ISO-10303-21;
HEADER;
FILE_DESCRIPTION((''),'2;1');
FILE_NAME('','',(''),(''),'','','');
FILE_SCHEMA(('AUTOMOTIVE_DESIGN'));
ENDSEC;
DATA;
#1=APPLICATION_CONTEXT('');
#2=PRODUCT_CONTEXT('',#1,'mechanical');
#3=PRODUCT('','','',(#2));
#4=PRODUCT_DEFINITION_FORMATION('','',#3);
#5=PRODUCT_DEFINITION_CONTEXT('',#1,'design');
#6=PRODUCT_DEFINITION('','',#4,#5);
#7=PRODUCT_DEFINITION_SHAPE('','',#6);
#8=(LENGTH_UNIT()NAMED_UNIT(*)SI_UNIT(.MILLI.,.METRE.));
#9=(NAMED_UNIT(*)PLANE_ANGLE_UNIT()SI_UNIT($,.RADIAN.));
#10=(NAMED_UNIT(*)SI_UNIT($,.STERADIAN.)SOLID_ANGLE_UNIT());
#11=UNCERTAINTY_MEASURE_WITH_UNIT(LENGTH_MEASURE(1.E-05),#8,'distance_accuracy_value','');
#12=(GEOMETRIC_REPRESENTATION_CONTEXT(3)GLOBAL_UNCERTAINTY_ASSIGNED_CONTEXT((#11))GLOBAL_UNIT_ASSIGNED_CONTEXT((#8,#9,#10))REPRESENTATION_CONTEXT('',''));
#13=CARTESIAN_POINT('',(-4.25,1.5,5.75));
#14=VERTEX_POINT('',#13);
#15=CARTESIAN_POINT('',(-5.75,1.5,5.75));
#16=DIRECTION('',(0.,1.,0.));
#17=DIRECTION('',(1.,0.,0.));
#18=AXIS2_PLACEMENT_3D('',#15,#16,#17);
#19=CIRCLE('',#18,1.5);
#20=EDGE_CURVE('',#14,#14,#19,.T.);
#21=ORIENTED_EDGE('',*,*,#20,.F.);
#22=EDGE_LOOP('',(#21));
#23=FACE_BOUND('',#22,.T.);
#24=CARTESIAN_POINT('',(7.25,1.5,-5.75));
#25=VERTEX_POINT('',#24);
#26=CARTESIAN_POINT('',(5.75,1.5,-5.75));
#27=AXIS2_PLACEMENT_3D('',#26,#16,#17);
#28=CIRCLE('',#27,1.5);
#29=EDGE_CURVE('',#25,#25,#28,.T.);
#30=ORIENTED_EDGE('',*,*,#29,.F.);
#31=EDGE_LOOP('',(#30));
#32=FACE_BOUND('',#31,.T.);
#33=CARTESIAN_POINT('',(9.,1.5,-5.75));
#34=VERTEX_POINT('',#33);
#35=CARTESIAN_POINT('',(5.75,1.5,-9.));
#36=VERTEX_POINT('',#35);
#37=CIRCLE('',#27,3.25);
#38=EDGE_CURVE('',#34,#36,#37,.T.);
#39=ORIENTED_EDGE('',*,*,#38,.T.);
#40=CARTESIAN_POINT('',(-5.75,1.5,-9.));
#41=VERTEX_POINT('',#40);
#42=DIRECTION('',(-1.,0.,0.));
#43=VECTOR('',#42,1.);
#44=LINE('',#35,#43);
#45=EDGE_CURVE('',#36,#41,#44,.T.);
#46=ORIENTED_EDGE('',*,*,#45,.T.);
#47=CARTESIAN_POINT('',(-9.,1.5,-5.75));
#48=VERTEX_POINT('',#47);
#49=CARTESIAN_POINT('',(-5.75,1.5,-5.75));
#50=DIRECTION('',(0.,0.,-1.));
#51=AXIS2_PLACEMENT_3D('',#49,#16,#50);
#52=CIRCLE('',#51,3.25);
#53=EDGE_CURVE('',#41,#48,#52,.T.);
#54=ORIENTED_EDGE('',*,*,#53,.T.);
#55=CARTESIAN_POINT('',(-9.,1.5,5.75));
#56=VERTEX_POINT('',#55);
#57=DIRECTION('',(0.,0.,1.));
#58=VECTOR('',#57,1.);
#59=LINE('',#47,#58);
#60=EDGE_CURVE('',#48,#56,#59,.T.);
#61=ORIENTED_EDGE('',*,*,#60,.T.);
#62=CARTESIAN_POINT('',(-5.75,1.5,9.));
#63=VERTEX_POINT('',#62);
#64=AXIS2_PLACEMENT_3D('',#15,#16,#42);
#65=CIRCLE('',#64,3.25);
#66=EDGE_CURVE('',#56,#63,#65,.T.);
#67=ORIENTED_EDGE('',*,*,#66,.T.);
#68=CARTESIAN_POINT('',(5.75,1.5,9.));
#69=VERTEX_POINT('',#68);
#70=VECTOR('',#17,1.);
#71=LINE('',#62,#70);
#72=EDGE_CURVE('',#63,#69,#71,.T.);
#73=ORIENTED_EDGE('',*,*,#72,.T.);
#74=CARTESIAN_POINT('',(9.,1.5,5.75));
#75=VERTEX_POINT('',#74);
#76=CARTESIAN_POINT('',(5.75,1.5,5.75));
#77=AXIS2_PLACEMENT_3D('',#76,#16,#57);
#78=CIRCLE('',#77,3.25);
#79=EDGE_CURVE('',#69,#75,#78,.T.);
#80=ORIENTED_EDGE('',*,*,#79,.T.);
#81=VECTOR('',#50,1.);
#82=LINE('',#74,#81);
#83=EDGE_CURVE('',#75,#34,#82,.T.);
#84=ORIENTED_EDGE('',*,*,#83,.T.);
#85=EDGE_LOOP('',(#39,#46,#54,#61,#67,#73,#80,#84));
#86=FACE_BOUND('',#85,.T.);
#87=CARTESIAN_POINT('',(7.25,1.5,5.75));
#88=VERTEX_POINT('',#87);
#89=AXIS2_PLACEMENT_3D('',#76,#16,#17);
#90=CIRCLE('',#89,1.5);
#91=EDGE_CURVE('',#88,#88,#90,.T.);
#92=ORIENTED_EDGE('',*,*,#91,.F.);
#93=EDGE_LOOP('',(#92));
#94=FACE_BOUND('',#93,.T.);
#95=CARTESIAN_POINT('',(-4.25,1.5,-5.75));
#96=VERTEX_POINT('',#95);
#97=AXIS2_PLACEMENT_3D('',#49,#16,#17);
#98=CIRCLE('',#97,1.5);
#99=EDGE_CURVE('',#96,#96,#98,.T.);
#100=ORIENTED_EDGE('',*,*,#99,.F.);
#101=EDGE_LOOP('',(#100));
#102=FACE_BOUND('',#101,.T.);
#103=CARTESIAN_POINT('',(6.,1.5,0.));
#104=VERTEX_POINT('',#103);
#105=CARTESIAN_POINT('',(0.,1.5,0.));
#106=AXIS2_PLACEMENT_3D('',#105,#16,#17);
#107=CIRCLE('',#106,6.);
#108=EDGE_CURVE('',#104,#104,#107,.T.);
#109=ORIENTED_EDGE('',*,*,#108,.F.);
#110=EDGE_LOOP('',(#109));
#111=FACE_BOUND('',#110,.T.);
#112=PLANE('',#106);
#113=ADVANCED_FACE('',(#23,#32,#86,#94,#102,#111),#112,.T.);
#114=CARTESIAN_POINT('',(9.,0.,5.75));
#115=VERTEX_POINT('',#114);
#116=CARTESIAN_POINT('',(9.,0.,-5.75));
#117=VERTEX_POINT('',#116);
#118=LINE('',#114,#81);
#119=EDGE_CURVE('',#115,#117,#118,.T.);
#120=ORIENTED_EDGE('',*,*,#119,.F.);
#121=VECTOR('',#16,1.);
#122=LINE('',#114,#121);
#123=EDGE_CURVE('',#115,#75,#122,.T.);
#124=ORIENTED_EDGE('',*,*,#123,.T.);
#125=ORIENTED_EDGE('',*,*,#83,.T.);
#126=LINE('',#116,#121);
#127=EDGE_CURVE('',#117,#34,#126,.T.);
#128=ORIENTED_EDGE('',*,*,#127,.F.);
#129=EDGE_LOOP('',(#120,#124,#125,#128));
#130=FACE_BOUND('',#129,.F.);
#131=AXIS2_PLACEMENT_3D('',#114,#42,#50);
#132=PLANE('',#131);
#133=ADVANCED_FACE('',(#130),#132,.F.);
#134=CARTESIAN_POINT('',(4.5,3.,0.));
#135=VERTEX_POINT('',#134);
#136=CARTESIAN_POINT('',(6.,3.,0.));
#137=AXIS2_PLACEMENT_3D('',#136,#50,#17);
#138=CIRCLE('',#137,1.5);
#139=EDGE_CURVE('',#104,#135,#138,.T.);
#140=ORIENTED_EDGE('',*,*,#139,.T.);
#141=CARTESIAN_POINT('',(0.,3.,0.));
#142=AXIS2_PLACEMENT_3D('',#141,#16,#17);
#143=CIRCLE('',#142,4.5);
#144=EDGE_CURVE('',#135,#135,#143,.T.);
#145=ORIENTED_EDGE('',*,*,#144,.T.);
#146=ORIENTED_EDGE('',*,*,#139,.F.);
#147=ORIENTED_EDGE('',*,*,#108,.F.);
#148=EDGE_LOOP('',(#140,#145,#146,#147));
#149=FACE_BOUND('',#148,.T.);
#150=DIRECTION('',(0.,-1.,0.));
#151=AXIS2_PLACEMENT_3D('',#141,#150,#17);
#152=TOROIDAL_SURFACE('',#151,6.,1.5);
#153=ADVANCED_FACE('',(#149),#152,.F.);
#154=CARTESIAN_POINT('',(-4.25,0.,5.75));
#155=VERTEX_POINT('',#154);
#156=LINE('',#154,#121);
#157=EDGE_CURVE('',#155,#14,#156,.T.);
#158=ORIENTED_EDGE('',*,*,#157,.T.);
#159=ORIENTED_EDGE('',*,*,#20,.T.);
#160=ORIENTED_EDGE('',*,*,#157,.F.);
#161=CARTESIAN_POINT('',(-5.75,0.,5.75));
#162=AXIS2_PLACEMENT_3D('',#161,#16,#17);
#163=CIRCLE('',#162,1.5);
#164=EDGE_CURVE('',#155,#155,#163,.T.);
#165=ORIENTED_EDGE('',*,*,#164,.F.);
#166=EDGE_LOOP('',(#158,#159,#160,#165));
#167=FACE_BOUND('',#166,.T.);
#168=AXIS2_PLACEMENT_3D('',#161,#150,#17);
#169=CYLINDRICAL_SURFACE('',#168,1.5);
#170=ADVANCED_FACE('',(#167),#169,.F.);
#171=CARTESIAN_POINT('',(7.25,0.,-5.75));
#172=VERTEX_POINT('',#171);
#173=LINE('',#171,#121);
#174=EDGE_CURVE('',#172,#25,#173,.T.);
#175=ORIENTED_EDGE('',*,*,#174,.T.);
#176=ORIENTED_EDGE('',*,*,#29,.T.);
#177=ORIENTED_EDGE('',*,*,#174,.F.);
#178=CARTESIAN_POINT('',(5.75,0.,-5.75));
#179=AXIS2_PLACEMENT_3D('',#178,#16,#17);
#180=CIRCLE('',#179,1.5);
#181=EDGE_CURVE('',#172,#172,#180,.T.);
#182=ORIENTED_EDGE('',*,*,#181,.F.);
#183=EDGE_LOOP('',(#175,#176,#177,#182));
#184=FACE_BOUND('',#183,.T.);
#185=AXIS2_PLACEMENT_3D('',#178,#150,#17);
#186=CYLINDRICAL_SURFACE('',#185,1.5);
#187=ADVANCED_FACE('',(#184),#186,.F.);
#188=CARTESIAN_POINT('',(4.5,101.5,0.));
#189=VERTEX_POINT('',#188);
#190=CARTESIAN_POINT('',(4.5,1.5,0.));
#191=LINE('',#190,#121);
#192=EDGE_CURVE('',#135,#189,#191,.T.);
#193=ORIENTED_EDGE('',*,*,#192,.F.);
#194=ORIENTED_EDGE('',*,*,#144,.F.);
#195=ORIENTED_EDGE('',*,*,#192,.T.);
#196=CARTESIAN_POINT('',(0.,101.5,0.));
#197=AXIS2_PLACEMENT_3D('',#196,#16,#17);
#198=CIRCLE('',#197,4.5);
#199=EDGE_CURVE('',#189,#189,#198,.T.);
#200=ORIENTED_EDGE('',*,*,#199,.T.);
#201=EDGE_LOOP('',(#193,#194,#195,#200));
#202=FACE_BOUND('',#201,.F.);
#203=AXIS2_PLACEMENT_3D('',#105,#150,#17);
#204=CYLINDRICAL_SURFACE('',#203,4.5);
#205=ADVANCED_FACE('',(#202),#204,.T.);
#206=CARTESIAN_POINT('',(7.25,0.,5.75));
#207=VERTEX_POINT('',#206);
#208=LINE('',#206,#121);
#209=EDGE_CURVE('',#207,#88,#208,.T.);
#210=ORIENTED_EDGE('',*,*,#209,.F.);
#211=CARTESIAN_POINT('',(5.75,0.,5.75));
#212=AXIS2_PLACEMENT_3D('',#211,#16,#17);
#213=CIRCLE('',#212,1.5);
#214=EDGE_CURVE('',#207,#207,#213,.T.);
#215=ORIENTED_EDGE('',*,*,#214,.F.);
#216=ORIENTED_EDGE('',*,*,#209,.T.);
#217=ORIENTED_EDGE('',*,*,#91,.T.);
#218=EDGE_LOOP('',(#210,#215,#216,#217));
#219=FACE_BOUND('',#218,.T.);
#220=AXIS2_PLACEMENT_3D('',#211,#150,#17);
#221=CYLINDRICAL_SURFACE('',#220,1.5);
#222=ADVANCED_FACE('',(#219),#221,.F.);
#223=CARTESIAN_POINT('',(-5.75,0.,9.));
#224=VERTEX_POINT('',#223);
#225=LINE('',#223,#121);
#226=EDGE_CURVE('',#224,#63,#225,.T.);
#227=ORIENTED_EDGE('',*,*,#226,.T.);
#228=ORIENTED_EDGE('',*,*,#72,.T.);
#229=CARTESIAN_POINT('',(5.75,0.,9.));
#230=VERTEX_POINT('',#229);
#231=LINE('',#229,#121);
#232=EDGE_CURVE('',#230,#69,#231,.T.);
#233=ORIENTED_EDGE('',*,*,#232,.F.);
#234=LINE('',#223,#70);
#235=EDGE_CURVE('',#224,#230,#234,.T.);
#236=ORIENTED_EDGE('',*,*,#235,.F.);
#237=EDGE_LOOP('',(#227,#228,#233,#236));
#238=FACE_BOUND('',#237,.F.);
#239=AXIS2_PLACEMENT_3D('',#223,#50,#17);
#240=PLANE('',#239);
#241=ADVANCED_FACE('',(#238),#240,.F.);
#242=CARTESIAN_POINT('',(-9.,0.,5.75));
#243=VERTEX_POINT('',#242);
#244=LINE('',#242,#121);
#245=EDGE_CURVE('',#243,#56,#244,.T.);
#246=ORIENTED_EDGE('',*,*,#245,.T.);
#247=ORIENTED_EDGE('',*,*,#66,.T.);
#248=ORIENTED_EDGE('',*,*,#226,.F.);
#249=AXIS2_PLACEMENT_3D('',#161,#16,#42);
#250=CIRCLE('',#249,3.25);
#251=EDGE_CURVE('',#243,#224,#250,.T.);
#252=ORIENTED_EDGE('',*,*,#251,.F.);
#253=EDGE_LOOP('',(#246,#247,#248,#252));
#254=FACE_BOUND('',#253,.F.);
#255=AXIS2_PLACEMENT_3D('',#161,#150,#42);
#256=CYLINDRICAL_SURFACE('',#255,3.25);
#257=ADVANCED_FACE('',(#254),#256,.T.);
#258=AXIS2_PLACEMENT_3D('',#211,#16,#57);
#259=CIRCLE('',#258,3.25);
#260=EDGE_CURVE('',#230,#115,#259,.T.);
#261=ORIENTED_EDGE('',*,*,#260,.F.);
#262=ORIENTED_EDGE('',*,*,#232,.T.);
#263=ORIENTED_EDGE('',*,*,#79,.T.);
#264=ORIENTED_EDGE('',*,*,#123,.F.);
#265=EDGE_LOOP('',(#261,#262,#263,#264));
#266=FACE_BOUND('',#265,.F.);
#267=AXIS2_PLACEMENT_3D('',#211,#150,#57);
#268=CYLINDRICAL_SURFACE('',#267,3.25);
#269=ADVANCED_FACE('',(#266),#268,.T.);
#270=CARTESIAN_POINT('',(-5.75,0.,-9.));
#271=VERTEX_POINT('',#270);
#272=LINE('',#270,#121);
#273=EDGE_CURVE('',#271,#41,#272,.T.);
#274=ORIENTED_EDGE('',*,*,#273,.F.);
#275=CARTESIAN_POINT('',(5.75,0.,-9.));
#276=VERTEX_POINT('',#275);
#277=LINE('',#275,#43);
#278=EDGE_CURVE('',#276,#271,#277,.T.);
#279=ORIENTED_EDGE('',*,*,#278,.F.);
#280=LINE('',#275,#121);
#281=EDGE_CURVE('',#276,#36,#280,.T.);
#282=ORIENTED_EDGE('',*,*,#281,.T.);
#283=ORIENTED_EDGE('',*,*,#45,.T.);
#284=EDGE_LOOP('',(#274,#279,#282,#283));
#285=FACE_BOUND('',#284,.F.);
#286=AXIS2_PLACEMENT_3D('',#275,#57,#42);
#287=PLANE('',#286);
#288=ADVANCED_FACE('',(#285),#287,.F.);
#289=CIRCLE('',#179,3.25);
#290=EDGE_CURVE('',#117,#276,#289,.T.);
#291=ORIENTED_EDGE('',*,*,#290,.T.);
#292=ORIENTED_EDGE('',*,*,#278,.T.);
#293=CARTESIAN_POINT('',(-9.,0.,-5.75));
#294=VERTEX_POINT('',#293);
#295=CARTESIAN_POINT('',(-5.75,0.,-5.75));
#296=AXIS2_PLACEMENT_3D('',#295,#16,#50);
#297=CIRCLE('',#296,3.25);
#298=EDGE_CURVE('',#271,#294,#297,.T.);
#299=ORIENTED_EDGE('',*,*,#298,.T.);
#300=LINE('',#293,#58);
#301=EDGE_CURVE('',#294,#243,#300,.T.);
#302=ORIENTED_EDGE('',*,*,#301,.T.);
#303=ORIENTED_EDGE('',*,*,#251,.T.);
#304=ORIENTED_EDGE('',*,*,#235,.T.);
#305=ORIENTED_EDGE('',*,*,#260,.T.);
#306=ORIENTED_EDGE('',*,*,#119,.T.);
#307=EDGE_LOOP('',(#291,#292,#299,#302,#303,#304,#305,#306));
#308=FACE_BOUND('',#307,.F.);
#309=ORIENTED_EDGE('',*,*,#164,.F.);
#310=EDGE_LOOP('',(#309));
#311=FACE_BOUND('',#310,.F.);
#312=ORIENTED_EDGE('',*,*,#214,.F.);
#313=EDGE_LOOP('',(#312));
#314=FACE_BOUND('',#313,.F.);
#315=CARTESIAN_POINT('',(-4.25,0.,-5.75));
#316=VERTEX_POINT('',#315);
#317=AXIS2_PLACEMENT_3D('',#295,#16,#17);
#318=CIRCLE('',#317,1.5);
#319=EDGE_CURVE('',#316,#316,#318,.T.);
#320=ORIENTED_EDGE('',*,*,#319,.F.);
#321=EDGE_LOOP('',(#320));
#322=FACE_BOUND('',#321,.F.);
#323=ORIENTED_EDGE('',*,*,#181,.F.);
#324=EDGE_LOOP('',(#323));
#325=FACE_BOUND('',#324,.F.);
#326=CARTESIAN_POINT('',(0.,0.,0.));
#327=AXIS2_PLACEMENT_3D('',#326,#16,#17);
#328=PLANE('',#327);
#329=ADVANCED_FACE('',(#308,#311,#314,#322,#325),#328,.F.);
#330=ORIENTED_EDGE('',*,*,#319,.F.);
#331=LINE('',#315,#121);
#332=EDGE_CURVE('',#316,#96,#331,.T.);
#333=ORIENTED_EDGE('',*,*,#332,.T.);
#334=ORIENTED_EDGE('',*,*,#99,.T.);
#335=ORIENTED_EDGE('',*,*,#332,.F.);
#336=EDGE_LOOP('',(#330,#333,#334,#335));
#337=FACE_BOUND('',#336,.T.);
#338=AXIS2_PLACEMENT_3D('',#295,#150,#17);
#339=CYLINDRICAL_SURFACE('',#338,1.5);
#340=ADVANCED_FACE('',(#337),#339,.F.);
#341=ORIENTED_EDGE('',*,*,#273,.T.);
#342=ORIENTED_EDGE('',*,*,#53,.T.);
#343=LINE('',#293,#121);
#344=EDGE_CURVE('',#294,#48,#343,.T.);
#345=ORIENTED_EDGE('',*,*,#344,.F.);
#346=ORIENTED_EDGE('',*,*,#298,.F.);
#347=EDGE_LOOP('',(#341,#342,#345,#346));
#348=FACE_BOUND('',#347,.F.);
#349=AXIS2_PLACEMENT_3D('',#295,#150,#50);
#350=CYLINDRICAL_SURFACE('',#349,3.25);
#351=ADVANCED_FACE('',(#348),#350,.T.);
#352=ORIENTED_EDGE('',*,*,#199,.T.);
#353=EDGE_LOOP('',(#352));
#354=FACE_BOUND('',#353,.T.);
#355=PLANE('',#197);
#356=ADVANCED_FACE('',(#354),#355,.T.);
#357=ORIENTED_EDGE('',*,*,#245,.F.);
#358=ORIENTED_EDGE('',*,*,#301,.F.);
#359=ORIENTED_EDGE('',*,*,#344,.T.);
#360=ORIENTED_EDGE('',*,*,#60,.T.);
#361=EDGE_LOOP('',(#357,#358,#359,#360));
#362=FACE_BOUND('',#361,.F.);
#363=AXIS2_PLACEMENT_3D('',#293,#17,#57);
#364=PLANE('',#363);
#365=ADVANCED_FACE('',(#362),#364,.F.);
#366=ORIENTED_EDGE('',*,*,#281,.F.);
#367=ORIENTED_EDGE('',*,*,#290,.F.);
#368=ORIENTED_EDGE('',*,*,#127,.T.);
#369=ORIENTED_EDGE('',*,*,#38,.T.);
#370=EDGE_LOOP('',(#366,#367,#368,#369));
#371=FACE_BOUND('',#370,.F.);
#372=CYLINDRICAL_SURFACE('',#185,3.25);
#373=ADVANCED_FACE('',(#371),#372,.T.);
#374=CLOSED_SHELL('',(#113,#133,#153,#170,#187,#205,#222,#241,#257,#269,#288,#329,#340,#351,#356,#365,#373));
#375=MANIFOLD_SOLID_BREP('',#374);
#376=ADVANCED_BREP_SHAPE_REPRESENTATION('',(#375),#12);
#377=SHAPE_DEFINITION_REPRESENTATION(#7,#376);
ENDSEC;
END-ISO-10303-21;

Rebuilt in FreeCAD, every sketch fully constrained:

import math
import FreeCAD as App
import Part
import Sketcher

V = App.Vector
Q = App.Units.Quantity


def edges_at(feature, points):
    """Names of the edges that pass closest to the given points."""
    edges = feature.Shape.Edges
    near = lambda p: min(range(len(edges)), key=lambda i: edges[i].distToShape(Part.Vertex(*p))[0])
    return sorted({f"Edge{near(p) + 1}" for p in points})

doc = App.newDocument("Part")
body = doc.addObject("PartDesign::Body", "Body")

sketch1 = body.newObject("Sketcher::SketchObject", "Sketch")
sketch1.AttachmentSupport = (doc.getObject("XZ_Plane"), [""])
sketch1.MapMode = "FlatFace"
sketch1.addGeometry([
    Part.LineSegment(V(5.8, -9, 0), V(-5.8, -9, 0)),
    Part.ArcOfCircle(Part.Circle(V(-5.8, -5.8, 0), V(0, 0, 1), 3.2), math.radians(180), math.radians(270)),
    Part.LineSegment(V(-9, -5.8, 0), V(-9, 5.8, 0)),
    Part.ArcOfCircle(Part.Circle(V(-5.8, 5.8, 0), V(0, 0, 1), 3.2), math.radians(90), math.radians(180)),
    Part.LineSegment(V(-5.8, 9, 0), V(5.8, 9, 0)),
    Part.ArcOfCircle(Part.Circle(V(5.8, 5.8, 0), V(0, 0, 1), 3.2), math.radians(0), math.radians(90)),
    Part.LineSegment(V(9, 5.8, 0), V(9, -5.8, 0)),
    Part.ArcOfCircle(Part.Circle(V(5.8, -5.8, 0), V(0, 0, 1), 3.2), math.radians(-90), math.radians(0)),
    Part.Circle(V(-5.8, 5.8, 0), V(0, 0, 1), 1.5),
    Part.Circle(V(5.8, 5.8, 0), V(0, 0, 1), 1.5),
    Part.Circle(V(-5.8, -5.8, 0), V(0, 0, 1), 1.5),
    Part.Circle(V(5.8, -5.8, 0), V(0, 0, 1), 1.5),
], False)
sketch1.addConstraint([
    Sketcher.Constraint("Tangent", 0, 2, 1, 2),
    Sketcher.Constraint("Tangent", 1, 1, 2, 1),
    Sketcher.Constraint("Tangent", 2, 2, 3, 2),
    Sketcher.Constraint("Tangent", 3, 1, 4, 1),
    Sketcher.Constraint("Tangent", 4, 2, 5, 2),
    Sketcher.Constraint("Tangent", 5, 1, 6, 1),
    Sketcher.Constraint("Tangent", 6, 2, 7, 2),
    Sketcher.Constraint("Tangent", 7, 1, 0, 1),
    Sketcher.Constraint("Horizontal", 0),
    Sketcher.Constraint("Vertical", 2),
    Sketcher.Constraint("Horizontal", 4),
    Sketcher.Constraint("Vertical", 6),
    Sketcher.Constraint("Coincident", 8, 3, 3, 3),
    Sketcher.Constraint("Coincident", 9, 3, 5, 3),
    Sketcher.Constraint("Coincident", 10, 3, 1, 3),
    Sketcher.Constraint("Coincident", 11, 3, 7, 3),
    Sketcher.Constraint("Equal", 1, 3),
    Sketcher.Constraint("Equal", 3, 5),
    Sketcher.Constraint("Equal", 5, 7),
    Sketcher.Constraint("Equal", 8, 9),
    Sketcher.Constraint("Equal", 9, 10),
    Sketcher.Constraint("Equal", 10, 11),
    Sketcher.Constraint("Symmetric", 1, 3, 5, 3, -1, 1),
    Sketcher.Constraint("Equal", 4, 2),
    Sketcher.Constraint("Diameter", 8, Q("3 mm")),
    Sketcher.Constraint("Radius", 1, Q("3.25 mm")),
    Sketcher.Constraint("DistanceX", 0, 2, 0, 1, Q("11.5 mm")),
])
pad1 = body.newObject("PartDesign::Pad", "Pad")
pad1.Profile = sketch1
pad1.Length = 1.5
pad1.Reversed = True

sketch2 = body.newObject("Sketcher::SketchObject", "Sketch001")
sketch2.AttachmentSupport = (doc.getObject("XZ_Plane"), [""])
sketch2.MapMode = "FlatFace"
sketch2.AttachmentOffset = App.Placement(V(0, 0, -1.5), App.Rotation())
sketch2.addGeometry(Part.Circle(V(0, 0, 0), V(0, 0, 1), 4.5), False)
sketch2.addConstraint([
    Sketcher.Constraint("Coincident", 0, 3, -1, 1),
    Sketcher.Constraint("Diameter", 0, Q("9 mm")),
])
pad2 = body.newObject("PartDesign::Pad", "Pad001")
pad2.Profile = sketch2
pad2.Length = 100
pad2.Reversed = True
doc.recompute()

fillet = body.newObject("PartDesign::Fillet", "Fillet")
fillet.Base = (pad2, edges_at(pad2, [(-4.5, 1.5, 0)]))
fillet.Radius = 1.5

doc.recompute()
